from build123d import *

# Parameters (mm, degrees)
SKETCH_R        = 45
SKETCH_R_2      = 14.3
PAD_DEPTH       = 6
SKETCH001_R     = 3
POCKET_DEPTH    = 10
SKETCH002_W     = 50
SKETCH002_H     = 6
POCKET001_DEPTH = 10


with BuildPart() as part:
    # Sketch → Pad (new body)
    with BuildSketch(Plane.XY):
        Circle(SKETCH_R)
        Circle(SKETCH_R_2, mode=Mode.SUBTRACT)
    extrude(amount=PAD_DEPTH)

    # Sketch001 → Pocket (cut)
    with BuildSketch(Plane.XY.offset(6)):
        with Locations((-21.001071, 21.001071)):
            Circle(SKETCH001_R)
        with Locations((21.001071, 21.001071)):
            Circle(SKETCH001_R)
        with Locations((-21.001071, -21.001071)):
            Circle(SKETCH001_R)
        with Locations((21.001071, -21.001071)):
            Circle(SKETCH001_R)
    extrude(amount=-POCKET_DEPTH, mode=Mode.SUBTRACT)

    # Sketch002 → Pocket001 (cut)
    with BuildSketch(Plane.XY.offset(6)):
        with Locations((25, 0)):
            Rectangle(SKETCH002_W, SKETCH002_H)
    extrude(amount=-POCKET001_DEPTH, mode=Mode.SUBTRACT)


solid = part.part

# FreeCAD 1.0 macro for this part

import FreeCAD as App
import Part
import Sketcher
Q = App.Units.Quantity

doc = App.newDocument("Part")
body = doc.addObject("PartDesign::Body", "Body")

# Sketch on XY plane
sketch1 = body.newObject("Sketcher::SketchObject", "Sketch")
sketch1.AttachmentSupport = (doc.getObject("XY_Plane"), [""])
sketch1.MapMode = "FlatFace"
sketch1.addGeometry(Part.Circle(App.Vector(0, 0, 0), App.Vector(0, 0, 1), 45), False)
sketch1.addGeometry(Part.Circle(App.Vector(0, 0, 0), App.Vector(0, 0, 1), 14), False)
sketch1.addConstraint(Sketcher.Constraint("Coincident", 0, 3, -1, 1))
sketch1.addConstraint(Sketcher.Constraint("Coincident", 1, 3, -1, 1))
sketch1.addConstraint(Sketcher.Constraint("Diameter", 0, Q("90 mm")))
sketch1.addConstraint(Sketcher.Constraint("Diameter", 1, Q("28.6 mm")))
pad1 = body.newObject("PartDesign::Pad", "Pad")
pad1.Profile = sketch1
pad1.Length = 6

# Sketch on XY plane
sketch2 = body.newObject("Sketcher::SketchObject", "Sketch001")
sketch2.AttachmentSupport = (doc.getObject("XY_Plane"), [""])
sketch2.MapMode = "FlatFace"
sketch2.AttachmentOffset = App.Placement(App.Vector(0, 0, 6), App.Rotation())
sketch2.addGeometry(Part.Circle(App.Vector(-21, 21, 0), App.Vector(0, 0, 1), 3), False)
sketch2.addGeometry(Part.Circle(App.Vector(21, 21, 0), App.Vector(0, 0, 1), 3), False)
sketch2.addGeometry(Part.Circle(App.Vector(-21, -21, 0), App.Vector(0, 0, 1), 3), False)
sketch2.addGeometry(Part.Circle(App.Vector(21, -21, 0), App.Vector(0, 0, 1), 3), False)
sketch2.addConstraint(Sketcher.Constraint("Equal", 0, 1))
sketch2.addConstraint(Sketcher.Constraint("Equal", 1, 2))
sketch2.addConstraint(Sketcher.Constraint("Equal", 2, 3))
sketch2.addConstraint(Sketcher.Constraint("Symmetric", 1, 3, 2, 3, -1, 1))
sketch2.addConstraint(Sketcher.Constraint("Symmetric", 0, 3, 3, 3, -1, 1))
sketch2.addConstraint(Sketcher.Constraint("Symmetric", 0, 3, 1, 3, -2))
sketch2.addConstraint(Sketcher.Constraint("Diameter", 0, Q("6 mm")))
sketch2.addConstraint(Sketcher.Constraint("DistanceX", 0, 3, -1, 1, Q("21.001071 mm")))
sketch2.addConstraint(Sketcher.Constraint("DistanceY", -1, 1, 0, 3, Q("21.001071 mm")))
pocket1 = body.newObject("PartDesign::Pocket", "Pocket")
pocket1.Profile = sketch2
pocket1.Length = 10

# Sketch on XY plane
sketch3 = body.newObject("Sketcher::SketchObject", "Sketch002")
sketch3.AttachmentSupport = (doc.getObject("XY_Plane"), [""])
sketch3.MapMode = "FlatFace"
sketch3.AttachmentOffset = App.Placement(App.Vector(0, 0, 6), App.Rotation())
sketch3.addGeometry(Part.LineSegment(App.Vector(0, 3, 0), App.Vector(0, -3, 0)), False)
sketch3.addGeometry(Part.LineSegment(App.Vector(0, -3, 0), App.Vector(50, -3, 0)), False)
sketch3.addGeometry(Part.LineSegment(App.Vector(50, -3, 0), App.Vector(50, 3, 0)), False)
sketch3.addGeometry(Part.LineSegment(App.Vector(50, 3, 0), App.Vector(0, 3, 0)), False)
sketch3.addConstraint(Sketcher.Constraint("Coincident", 0, 2, 1, 1))
sketch3.addConstraint(Sketcher.Constraint("Coincident", 1, 2, 2, 1))
sketch3.addConstraint(Sketcher.Constraint("Coincident", 2, 2, 3, 1))
sketch3.addConstraint(Sketcher.Constraint("Coincident", 3, 2, 0, 1))
sketch3.addConstraint(Sketcher.Constraint("Vertical", 0))
sketch3.addConstraint(Sketcher.Constraint("Horizontal", 1))
sketch3.addConstraint(Sketcher.Constraint("Vertical", 2))
sketch3.addConstraint(Sketcher.Constraint("Horizontal", 3))
sketch3.addConstraint(Sketcher.Constraint("Symmetric", 0, 2, 3, 2, -1, 1))
sketch3.addConstraint(Sketcher.Constraint("DistanceX", 1, 1, 1, 2, Q("50 mm")))
sketch3.addConstraint(Sketcher.Constraint("DistanceY", 0, 2, 0, 1, Q("6 mm")))
pocket2 = body.newObject("PartDesign::Pocket", "Pocket001")
pocket2.Profile = sketch3
pocket2.Length = 10

doc.recompute()
